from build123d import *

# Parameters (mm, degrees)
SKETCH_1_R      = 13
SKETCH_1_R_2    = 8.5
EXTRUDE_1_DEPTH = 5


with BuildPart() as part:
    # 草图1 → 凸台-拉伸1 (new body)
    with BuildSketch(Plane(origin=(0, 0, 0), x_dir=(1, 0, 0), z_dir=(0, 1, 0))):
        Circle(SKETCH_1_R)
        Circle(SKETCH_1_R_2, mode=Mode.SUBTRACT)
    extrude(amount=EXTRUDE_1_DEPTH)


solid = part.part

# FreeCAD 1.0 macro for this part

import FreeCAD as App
import Part
import Sketcher

V = App.Vector

doc = App.newDocument("Part")
body = doc.addObject("PartDesign::Body", "Body")

# Sketch on XZ plane
sketch1 = doc.addObject("Sketcher::SketchObject", "Sketch")
body.addObject(sketch1)
sketch1.AttachmentSupport = (doc.XZ_Plane, [""])
sketch1.MapMode = "FlatFace"
sketch1.addGeometry([
    Part.Circle(V(0, 0, 0), V(0, 0, 1), 13),
    Part.Circle(V(0, 0, 0), V(0, 0, 1), 8),
], False)
sketch1.addConstraint([
    Sketcher.Constraint("Coincident", 0, 3, -1, 1),
    Sketcher.Constraint("Coincident", 1, 3, -1, 1),
    Sketcher.Constraint("Diameter", 0, 26.0),
    Sketcher.Constraint("Diameter", 1, 17.0),
])
pad1 = doc.addObject("PartDesign::Pad", "Pad")
body.addObject(pad1)
pad1.Profile = sketch1
pad1.Length = 5
pad1.Reversed = True

doc.recompute()
